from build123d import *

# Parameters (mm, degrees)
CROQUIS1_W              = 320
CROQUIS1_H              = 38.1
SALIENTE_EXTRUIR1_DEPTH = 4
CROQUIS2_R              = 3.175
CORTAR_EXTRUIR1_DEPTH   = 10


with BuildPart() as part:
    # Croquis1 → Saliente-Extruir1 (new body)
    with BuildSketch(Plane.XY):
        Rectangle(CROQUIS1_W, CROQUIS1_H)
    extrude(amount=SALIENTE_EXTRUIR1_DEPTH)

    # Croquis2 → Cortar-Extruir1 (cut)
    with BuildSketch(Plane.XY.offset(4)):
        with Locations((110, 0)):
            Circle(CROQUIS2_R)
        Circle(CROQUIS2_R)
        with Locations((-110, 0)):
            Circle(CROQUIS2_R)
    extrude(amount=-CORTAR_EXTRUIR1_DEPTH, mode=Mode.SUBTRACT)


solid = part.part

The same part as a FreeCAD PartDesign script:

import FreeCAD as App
import Part
import Sketcher

V = App.Vector


def add_polygon(sketch, points):
    """Adds a closed chain of lines whose ends are joined by coincident constraints."""
    first, n = sketch.GeometryCount, len(points)
    for a, b in zip(points, points[1:] + points[:1]):
        sketch.addGeometry(Part.LineSegment(App.Vector(*a, 0), App.Vector(*b, 0)), False)
    for i in range(n):
        sketch.addConstraint(Sketcher.Constraint("Coincident", first + i, 2, first + (i + 1) % n, 1))

doc = App.newDocument("Part")
body = doc.addObject("PartDesign::Body", "Body")

sketch1 = body.newObject("Sketcher::SketchObject", "Sketch")
sketch1.AttachmentSupport = (doc.getObject("XY_Plane"), [""])
sketch1.MapMode = "FlatFace"
add_polygon(sketch1, [(-160, 19), (-160, -19), (160, -19), (160, 19)])
sketch1.addConstraint(Sketcher.Constraint("Vertical", 0))
sketch1.addConstraint(Sketcher.Constraint("Horizontal", 1))
sketch1.addConstraint(Sketcher.Constraint("Vertical", 2))
sketch1.addConstraint(Sketcher.Constraint("Horizontal", 3))
sketch1.addConstraint(Sketcher.Constraint("Symmetric", 0, 2, 2, 2, -1, 1))
sketch1.addConstraint(Sketcher.Constraint("DistanceX", 1, 1, 1, 2, 320.0))
sketch1.addConstraint(Sketcher.Constraint("DistanceY", 0, 2, 0, 1, 38.1))
pad1 = body.newObject("PartDesign::Pad", "Pad")
pad1.Profile = sketch1
pad1.Length = 4

sketch2 = body.newObject("Sketcher::SketchObject", "Sketch001")
sketch2.AttachmentSupport = (doc.getObject("XY_Plane"), [""])
sketch2.MapMode = "FlatFace"
sketch2.AttachmentOffset = App.Placement(V(0, 0, 4), App.Rotation())
sketch2.addGeometry(Part.Circle(V(110, 0, 0), V(0, 0, 1), 3.2), False)
sketch2.addGeometry(Part.Circle(V(0, 0, 0), V(0, 0, 1), 3.2), False)
sketch2.addGeometry(Part.Circle(V(-110, 0, 0), V(0, 0, 1), 3.2), False)
sketch2.addConstraint(Sketcher.Constraint("Coincident", 1, 3, -1, 1))
sketch2.addConstraint(Sketcher.Constraint("Equal", 0, 1))
sketch2.addConstraint(Sketcher.Constraint("Equal", 1, 2))
sketch2.addConstraint(Sketcher.Constraint("Symmetric", 0, 3, 2, 3, -1, 1))
sketch2.addConstraint(Sketcher.Constraint("PointOnObject", 0, 3, -1))
sketch2.addConstraint(Sketcher.Constraint("Diameter", 0, 6.35))
sketch2.addConstraint(Sketcher.Constraint("DistanceX", -1, 1, 0, 3, 110.0))
pocket1 = body.newObject("PartDesign::Pocket", "Pocket")
pocket1.Profile = sketch2
pocket1.Length = 10

doc.recompute()
